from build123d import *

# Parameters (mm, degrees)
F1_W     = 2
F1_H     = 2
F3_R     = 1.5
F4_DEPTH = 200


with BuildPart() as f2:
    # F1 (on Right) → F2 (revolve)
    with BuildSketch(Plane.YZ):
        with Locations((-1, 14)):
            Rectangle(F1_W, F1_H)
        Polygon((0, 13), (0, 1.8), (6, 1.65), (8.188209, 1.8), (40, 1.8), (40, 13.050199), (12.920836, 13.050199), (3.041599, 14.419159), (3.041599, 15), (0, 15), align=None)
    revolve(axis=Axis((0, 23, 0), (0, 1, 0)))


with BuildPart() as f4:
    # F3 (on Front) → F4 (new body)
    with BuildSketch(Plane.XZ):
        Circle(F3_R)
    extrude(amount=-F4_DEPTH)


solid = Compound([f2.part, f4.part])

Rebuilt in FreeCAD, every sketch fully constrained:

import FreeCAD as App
import Part
import Sketcher
Q = App.Units.Quantity

doc = App.newDocument("Part")
body = doc.addObject("PartDesign::Body", "Body")

sketch1 = body.newObject("Sketcher::SketchObject", "Sketch")
sketch1.AttachmentSupport = (doc.getObject("YZ_Plane"), [""])
sketch1.MapMode = "FlatFace"
sketch1.addGeometry([
    Part.LineSegment(App.Vector(-2, 15, 0), App.Vector(-2, 13, 0)),
    Part.LineSegment(App.Vector(-2, 13, 0), App.Vector(0, 13, 0)),
    Part.LineSegment(App.Vector(0, 13, 0), App.Vector(0, 1.8, 0)),
    Part.LineSegment(App.Vector(0, 1.8, 0), App.Vector(6, 1.6, 0)),
    Part.LineSegment(App.Vector(6, 1.6, 0), App.Vector(8.2, 1.8, 0)),
    Part.LineSegment(App.Vector(8.2, 1.8, 0), App.Vector(40, 1.8, 0)),
    Part.LineSegment(App.Vector(40, 1.8, 0), App.Vector(40, 13.1, 0)),
    Part.LineSegment(App.Vector(40, 13.1, 0), App.Vector(12.9, 13.1, 0)),
    Part.LineSegment(App.Vector(12.9, 13.1, 0), App.Vector(3, 14.4, 0)),
    Part.LineSegment(App.Vector(3, 14.4, 0), App.Vector(3, 15, 0)),
    Part.LineSegment(App.Vector(3, 15, 0), App.Vector(-2, 15, 0)),
], False)
sketch1.addConstraint([
    Sketcher.Constraint("Coincident", 0, 2, 1, 1),
    Sketcher.Constraint("Coincident", 1, 2, 2, 1),
    Sketcher.Constraint("Coincident", 2, 2, 3, 1),
    Sketcher.Constraint("Coincident", 3, 2, 4, 1),
    Sketcher.Constraint("Coincident", 4, 2, 5, 1),
    Sketcher.Constraint("Coincident", 5, 2, 6, 1),
    Sketcher.Constraint("Coincident", 6, 2, 7, 1),
    Sketcher.Constraint("Coincident", 7, 2, 8, 1),
    Sketcher.Constraint("Coincident", 8, 2, 9, 1),
    Sketcher.Constraint("Coincident", 9, 2, 10, 1),
    Sketcher.Constraint("Coincident", 10, 2, 0, 1),
    Sketcher.Constraint("Vertical", 0),
    Sketcher.Constraint("Horizontal", 1),
    Sketcher.Constraint("Vertical", 2),
    Sketcher.Constraint("Horizontal", 5),
    Sketcher.Constraint("Vertical", 6),
    Sketcher.Constraint("Horizontal", 7),
    Sketcher.Constraint("Vertical", 9),
    Sketcher.Constraint("Horizontal", 10),
    Sketcher.Constraint("PointOnObject", 1, 2, -2),
    Sketcher.Constraint("Horizontal", 2, 2, 4, 2),
    Sketcher.Constraint("Equal", 1, 0),
    Sketcher.Constraint("DistanceX", 1, 1, 1, 2, Q("2 mm")),
    Sketcher.Constraint("DistanceY", 2, 2, 2, 1, Q("11.2 mm")),
    Sketcher.Constraint("DistanceY", -1, 1, 0, 2, Q("13 mm")),
    Sketcher.Constraint("DistanceX", -1, 1, 3, 2, Q("6 mm")),
    Sketcher.Constraint("DistanceX", -1, 1, 5, 2, Q("40 mm")),
    Sketcher.Constraint("DistanceY", -1, 1, 3, 2, Q("1.65 mm")),
    Sketcher.Constraint("DistanceX", 10, 2, 10, 1, Q("5.041599 mm")),
    Sketcher.Constraint("DistanceY", 6, 1, 6, 2, Q("11.250199 mm")),
    Sketcher.Constraint("DistanceX", 5, 1, 5, 2, Q("31.811791 mm")),
    Sketcher.Constraint("DistanceY", 9, 1, 9, 2, Q("0.580841 mm")),
    Sketcher.Constraint("DistanceX", 7, 2, 7, 1, Q("27.079164 mm")),
])
revolution = body.newObject("PartDesign::Revolution", "Revolution")
revolution.Profile = sketch1
revolution.ReferenceAxis = (sketch1, ["H_Axis"])
revolution.Angle = 360
body2 = doc.addObject("PartDesign::Body", "Body001")

sketch2 = body2.newObject("Sketcher::SketchObject", "Sketch001")
sketch2.AttachmentSupport = (doc.getObject("XZ_Plane001"), [""])
sketch2.MapMode = "FlatFace"
sketch2.addGeometry(Part.Circle(App.Vector(0, 0, 0), App.Vector(0, 0, 1), 1.5), False)
sketch2.addConstraint([
    Sketcher.Constraint("Coincident", 0, 3, -1, 1),
    Sketcher.Constraint("Diameter", 0, Q("3 mm")),
])
pad1 = body2.newObject("PartDesign::Pad", "Pad")
pad1.Profile = sketch2
pad1.Length = 200
pad1.Reversed = True

doc.recompute()
